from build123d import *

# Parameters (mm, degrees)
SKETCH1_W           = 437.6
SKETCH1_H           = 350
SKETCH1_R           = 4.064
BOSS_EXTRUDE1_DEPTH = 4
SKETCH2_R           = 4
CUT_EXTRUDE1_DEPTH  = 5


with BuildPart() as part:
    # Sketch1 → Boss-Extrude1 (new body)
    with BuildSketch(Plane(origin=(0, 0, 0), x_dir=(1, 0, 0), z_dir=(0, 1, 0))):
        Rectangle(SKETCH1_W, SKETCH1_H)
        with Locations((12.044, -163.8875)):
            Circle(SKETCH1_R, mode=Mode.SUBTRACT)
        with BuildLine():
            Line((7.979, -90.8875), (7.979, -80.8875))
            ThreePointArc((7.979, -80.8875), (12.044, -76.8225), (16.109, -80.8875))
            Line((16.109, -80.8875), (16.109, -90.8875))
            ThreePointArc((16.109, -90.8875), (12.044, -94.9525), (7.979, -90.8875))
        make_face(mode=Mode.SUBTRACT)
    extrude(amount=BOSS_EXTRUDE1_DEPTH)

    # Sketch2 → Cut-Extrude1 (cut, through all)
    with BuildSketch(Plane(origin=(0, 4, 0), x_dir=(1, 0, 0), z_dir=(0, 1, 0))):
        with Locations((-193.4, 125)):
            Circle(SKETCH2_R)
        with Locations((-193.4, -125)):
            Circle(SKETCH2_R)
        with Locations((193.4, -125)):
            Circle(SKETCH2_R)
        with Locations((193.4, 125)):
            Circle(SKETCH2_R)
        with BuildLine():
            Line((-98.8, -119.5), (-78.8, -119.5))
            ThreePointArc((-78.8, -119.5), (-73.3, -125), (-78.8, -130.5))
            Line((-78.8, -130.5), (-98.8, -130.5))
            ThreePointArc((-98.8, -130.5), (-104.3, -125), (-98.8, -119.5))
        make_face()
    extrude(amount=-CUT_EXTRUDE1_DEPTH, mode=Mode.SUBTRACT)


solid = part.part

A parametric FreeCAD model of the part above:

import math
import FreeCAD as App
import Part
import Sketcher
Q = App.Units.Quantity

doc = App.newDocument("Part")
body = doc.addObject("PartDesign::Body", "Body")

sketch1 = doc.addObject("Sketcher::SketchObject", "Sketch")
body.addObject(sketch1)
sketch1.AttachmentSupport = (doc.XZ_Plane, [""])
sketch1.MapMode = "FlatFace"
sketch1.addGeometry([
    Part.LineSegment(App.Vector(-218.8, -175, 0), App.Vector(-218.8, 175, 0)),
    Part.LineSegment(App.Vector(-218.8, 175, 0), App.Vector(218.8, 175, 0)),
    Part.LineSegment(App.Vector(218.8, 175, 0), App.Vector(218.8, -175, 0)),
    Part.LineSegment(App.Vector(218.8, -175, 0), App.Vector(-218.8, -175, 0)),
    Part.Circle(App.Vector(12.044, 163.8875, 0), App.Vector(0, 0, 1), 4.064),
    Part.ArcOfCircle(Part.Circle(App.Vector(12.044, 90.8875, 0), App.Vector(0, 0, 1), 4.065), math.radians(0), math.radians(180)),
    Part.LineSegment(App.Vector(7.979, 90.8875, 0), App.Vector(7.979, 80.8875, 0)),
    Part.ArcOfCircle(Part.Circle(App.Vector(12.044, 80.8875, 0), App.Vector(0, 0, 1), 4.065), math.radians(180), math.radians(360)),
    Part.LineSegment(App.Vector(16.109, 80.8875, 0), App.Vector(16.109, 90.8875, 0)),
], False)
sketch1.addConstraint([
    Sketcher.Constraint("Coincident", 0, 2, 1, 1),
    Sketcher.Constraint("Coincident", 1, 2, 2, 1),
    Sketcher.Constraint("Coincident", 2, 2, 3, 1),
    Sketcher.Constraint("Coincident", 3, 2, 0, 1),
    Sketcher.Constraint("Tangent", 5, 2, 6, 1),
    Sketcher.Constraint("Tangent", 6, 2, 7, 1),
    Sketcher.Constraint("Tangent", 7, 2, 8, 1),
    Sketcher.Constraint("Tangent", 8, 2, 5, 1),
    Sketcher.Constraint("Vertical", 0),
    Sketcher.Constraint("Horizontal", 1),
    Sketcher.Constraint("Vertical", 2),
    Sketcher.Constraint("Horizontal", 3),
    Sketcher.Constraint("Vertical", 6),
    Sketcher.Constraint("Vertical", 8),
    Sketcher.Constraint("Symmetric", 0, 2, 2, 2, -1, 1),
    Sketcher.Constraint("Vertical", 4, 3, 5, 3),
    Sketcher.Constraint("DistanceY", 0, 1, 0, 2, Q("350 mm")),
    Sketcher.Constraint("DistanceY", 6, 2, 6, 1, Q("10 mm")),
    Sketcher.Constraint("Diameter", 4, Q("8.128 mm")),
    Sketcher.Constraint("DistanceX", 1, 1, 1, 2, Q("437.6 mm")),
    Sketcher.Constraint("Radius", 5, Q("4.065 mm")),
    Sketcher.Constraint("DistanceY", 5, 3, 4, 3, Q("73 mm")),
    Sketcher.Constraint("DistanceX", -1, 1, 4, 3, Q("12.044 mm")),
    Sketcher.Constraint("DistanceY", -1, 1, 4, 3, Q("163.8875 mm")),
])
pad1 = doc.addObject("PartDesign::Pad", "Pad")
body.addObject(pad1)
pad1.Profile = sketch1
pad1.Length = 4
pad1.Reversed = True

sketch2 = doc.addObject("Sketcher::SketchObject", "Sketch001")
body.addObject(sketch2)
sketch2.AttachmentSupport = (doc.XZ_Plane, [""])
sketch2.MapMode = "FlatFace"
sketch2.AttachmentOffset = App.Placement(App.Vector(0, 0, -4), App.Rotation())
sketch2.addGeometry([
    Part.Circle(App.Vector(-193.4, -125, 0), App.Vector(0, 0, 1), 4),
    Part.Circle(App.Vector(-193.4, 125, 0), App.Vector(0, 0, 1), 4),
    Part.Circle(App.Vector(193.4, 125, 0), App.Vector(0, 0, 1), 4),
    Part.Circle(App.Vector(193.4, -125, 0), App.Vector(0, 0, 1), 4),
    Part.LineSegment(App.Vector(-78.8, 119.5, 0), App.Vector(-98.8, 119.5, 0)),
    Part.ArcOfCircle(Part.Circle(App.Vector(-98.8, 125, 0), App.Vector(0, 0, 1), 5.5), math.radians(90), math.radians(270)),
    Part.LineSegment(App.Vector(-98.8, 130.5, 0), App.Vector(-78.8, 130.5, 0)),
    Part.ArcOfCircle(Part.Circle(App.Vector(-78.8, 125, 0), App.Vector(0, 0, 1), 5.5), math.radians(-90), math.radians(90)),
], False)
sketch2.addConstraint([
    Sketcher.Constraint("Tangent", 4, 2, 5, 2),
    Sketcher.Constraint("Tangent", 5, 1, 6, 1),
    Sketcher.Constraint("Tangent", 6, 2, 7, 2),
    Sketcher.Constraint("Tangent", 7, 1, 4, 1),
    Sketcher.Constraint("Horizontal", 4),
    Sketcher.Constraint("Horizontal", 6),
    Sketcher.Constraint("Equal", 0, 1),
    Sketcher.Constraint("Equal", 1, 2),
    Sketcher.Constraint("Equal", 2, 3),
    Sketcher.Constraint("Symmetric", 0, 3, 2, 3, -1, 1),
    Sketcher.Constraint("Symmetric", 1, 3, 3, 3, -1, 1),
    Sketcher.Constraint("Symmetric", 1, 3, 2, 3, -2),
    Sketcher.Constraint("Horizontal", 2, 3, 5, 3),
    Sketcher.Constraint("Diameter", 0, Q("8 mm")),
    Sketcher.Constraint("Radius", 5, Q("5.5 mm")),
    Sketcher.Constraint("DistanceX", 4, 2, 4, 1, Q("20 mm")),
    Sketcher.Constraint("DistanceY", 0, 3, -1, 1, Q("125 mm")),
    Sketcher.Constraint("DistanceX", 0, 3, -1, 1, Q("193.4 mm")),
    Sketcher.Constraint("DistanceX", 5, 3, -1, 1, Q("98.8 mm")),
])
pocket1 = doc.addObject("PartDesign::Pocket", "Pocket")
body.addObject(pocket1)
pocket1.Profile = sketch2
pocket1.Type = "ThroughAll"
pocket1.Reversed = True

doc.recompute()
